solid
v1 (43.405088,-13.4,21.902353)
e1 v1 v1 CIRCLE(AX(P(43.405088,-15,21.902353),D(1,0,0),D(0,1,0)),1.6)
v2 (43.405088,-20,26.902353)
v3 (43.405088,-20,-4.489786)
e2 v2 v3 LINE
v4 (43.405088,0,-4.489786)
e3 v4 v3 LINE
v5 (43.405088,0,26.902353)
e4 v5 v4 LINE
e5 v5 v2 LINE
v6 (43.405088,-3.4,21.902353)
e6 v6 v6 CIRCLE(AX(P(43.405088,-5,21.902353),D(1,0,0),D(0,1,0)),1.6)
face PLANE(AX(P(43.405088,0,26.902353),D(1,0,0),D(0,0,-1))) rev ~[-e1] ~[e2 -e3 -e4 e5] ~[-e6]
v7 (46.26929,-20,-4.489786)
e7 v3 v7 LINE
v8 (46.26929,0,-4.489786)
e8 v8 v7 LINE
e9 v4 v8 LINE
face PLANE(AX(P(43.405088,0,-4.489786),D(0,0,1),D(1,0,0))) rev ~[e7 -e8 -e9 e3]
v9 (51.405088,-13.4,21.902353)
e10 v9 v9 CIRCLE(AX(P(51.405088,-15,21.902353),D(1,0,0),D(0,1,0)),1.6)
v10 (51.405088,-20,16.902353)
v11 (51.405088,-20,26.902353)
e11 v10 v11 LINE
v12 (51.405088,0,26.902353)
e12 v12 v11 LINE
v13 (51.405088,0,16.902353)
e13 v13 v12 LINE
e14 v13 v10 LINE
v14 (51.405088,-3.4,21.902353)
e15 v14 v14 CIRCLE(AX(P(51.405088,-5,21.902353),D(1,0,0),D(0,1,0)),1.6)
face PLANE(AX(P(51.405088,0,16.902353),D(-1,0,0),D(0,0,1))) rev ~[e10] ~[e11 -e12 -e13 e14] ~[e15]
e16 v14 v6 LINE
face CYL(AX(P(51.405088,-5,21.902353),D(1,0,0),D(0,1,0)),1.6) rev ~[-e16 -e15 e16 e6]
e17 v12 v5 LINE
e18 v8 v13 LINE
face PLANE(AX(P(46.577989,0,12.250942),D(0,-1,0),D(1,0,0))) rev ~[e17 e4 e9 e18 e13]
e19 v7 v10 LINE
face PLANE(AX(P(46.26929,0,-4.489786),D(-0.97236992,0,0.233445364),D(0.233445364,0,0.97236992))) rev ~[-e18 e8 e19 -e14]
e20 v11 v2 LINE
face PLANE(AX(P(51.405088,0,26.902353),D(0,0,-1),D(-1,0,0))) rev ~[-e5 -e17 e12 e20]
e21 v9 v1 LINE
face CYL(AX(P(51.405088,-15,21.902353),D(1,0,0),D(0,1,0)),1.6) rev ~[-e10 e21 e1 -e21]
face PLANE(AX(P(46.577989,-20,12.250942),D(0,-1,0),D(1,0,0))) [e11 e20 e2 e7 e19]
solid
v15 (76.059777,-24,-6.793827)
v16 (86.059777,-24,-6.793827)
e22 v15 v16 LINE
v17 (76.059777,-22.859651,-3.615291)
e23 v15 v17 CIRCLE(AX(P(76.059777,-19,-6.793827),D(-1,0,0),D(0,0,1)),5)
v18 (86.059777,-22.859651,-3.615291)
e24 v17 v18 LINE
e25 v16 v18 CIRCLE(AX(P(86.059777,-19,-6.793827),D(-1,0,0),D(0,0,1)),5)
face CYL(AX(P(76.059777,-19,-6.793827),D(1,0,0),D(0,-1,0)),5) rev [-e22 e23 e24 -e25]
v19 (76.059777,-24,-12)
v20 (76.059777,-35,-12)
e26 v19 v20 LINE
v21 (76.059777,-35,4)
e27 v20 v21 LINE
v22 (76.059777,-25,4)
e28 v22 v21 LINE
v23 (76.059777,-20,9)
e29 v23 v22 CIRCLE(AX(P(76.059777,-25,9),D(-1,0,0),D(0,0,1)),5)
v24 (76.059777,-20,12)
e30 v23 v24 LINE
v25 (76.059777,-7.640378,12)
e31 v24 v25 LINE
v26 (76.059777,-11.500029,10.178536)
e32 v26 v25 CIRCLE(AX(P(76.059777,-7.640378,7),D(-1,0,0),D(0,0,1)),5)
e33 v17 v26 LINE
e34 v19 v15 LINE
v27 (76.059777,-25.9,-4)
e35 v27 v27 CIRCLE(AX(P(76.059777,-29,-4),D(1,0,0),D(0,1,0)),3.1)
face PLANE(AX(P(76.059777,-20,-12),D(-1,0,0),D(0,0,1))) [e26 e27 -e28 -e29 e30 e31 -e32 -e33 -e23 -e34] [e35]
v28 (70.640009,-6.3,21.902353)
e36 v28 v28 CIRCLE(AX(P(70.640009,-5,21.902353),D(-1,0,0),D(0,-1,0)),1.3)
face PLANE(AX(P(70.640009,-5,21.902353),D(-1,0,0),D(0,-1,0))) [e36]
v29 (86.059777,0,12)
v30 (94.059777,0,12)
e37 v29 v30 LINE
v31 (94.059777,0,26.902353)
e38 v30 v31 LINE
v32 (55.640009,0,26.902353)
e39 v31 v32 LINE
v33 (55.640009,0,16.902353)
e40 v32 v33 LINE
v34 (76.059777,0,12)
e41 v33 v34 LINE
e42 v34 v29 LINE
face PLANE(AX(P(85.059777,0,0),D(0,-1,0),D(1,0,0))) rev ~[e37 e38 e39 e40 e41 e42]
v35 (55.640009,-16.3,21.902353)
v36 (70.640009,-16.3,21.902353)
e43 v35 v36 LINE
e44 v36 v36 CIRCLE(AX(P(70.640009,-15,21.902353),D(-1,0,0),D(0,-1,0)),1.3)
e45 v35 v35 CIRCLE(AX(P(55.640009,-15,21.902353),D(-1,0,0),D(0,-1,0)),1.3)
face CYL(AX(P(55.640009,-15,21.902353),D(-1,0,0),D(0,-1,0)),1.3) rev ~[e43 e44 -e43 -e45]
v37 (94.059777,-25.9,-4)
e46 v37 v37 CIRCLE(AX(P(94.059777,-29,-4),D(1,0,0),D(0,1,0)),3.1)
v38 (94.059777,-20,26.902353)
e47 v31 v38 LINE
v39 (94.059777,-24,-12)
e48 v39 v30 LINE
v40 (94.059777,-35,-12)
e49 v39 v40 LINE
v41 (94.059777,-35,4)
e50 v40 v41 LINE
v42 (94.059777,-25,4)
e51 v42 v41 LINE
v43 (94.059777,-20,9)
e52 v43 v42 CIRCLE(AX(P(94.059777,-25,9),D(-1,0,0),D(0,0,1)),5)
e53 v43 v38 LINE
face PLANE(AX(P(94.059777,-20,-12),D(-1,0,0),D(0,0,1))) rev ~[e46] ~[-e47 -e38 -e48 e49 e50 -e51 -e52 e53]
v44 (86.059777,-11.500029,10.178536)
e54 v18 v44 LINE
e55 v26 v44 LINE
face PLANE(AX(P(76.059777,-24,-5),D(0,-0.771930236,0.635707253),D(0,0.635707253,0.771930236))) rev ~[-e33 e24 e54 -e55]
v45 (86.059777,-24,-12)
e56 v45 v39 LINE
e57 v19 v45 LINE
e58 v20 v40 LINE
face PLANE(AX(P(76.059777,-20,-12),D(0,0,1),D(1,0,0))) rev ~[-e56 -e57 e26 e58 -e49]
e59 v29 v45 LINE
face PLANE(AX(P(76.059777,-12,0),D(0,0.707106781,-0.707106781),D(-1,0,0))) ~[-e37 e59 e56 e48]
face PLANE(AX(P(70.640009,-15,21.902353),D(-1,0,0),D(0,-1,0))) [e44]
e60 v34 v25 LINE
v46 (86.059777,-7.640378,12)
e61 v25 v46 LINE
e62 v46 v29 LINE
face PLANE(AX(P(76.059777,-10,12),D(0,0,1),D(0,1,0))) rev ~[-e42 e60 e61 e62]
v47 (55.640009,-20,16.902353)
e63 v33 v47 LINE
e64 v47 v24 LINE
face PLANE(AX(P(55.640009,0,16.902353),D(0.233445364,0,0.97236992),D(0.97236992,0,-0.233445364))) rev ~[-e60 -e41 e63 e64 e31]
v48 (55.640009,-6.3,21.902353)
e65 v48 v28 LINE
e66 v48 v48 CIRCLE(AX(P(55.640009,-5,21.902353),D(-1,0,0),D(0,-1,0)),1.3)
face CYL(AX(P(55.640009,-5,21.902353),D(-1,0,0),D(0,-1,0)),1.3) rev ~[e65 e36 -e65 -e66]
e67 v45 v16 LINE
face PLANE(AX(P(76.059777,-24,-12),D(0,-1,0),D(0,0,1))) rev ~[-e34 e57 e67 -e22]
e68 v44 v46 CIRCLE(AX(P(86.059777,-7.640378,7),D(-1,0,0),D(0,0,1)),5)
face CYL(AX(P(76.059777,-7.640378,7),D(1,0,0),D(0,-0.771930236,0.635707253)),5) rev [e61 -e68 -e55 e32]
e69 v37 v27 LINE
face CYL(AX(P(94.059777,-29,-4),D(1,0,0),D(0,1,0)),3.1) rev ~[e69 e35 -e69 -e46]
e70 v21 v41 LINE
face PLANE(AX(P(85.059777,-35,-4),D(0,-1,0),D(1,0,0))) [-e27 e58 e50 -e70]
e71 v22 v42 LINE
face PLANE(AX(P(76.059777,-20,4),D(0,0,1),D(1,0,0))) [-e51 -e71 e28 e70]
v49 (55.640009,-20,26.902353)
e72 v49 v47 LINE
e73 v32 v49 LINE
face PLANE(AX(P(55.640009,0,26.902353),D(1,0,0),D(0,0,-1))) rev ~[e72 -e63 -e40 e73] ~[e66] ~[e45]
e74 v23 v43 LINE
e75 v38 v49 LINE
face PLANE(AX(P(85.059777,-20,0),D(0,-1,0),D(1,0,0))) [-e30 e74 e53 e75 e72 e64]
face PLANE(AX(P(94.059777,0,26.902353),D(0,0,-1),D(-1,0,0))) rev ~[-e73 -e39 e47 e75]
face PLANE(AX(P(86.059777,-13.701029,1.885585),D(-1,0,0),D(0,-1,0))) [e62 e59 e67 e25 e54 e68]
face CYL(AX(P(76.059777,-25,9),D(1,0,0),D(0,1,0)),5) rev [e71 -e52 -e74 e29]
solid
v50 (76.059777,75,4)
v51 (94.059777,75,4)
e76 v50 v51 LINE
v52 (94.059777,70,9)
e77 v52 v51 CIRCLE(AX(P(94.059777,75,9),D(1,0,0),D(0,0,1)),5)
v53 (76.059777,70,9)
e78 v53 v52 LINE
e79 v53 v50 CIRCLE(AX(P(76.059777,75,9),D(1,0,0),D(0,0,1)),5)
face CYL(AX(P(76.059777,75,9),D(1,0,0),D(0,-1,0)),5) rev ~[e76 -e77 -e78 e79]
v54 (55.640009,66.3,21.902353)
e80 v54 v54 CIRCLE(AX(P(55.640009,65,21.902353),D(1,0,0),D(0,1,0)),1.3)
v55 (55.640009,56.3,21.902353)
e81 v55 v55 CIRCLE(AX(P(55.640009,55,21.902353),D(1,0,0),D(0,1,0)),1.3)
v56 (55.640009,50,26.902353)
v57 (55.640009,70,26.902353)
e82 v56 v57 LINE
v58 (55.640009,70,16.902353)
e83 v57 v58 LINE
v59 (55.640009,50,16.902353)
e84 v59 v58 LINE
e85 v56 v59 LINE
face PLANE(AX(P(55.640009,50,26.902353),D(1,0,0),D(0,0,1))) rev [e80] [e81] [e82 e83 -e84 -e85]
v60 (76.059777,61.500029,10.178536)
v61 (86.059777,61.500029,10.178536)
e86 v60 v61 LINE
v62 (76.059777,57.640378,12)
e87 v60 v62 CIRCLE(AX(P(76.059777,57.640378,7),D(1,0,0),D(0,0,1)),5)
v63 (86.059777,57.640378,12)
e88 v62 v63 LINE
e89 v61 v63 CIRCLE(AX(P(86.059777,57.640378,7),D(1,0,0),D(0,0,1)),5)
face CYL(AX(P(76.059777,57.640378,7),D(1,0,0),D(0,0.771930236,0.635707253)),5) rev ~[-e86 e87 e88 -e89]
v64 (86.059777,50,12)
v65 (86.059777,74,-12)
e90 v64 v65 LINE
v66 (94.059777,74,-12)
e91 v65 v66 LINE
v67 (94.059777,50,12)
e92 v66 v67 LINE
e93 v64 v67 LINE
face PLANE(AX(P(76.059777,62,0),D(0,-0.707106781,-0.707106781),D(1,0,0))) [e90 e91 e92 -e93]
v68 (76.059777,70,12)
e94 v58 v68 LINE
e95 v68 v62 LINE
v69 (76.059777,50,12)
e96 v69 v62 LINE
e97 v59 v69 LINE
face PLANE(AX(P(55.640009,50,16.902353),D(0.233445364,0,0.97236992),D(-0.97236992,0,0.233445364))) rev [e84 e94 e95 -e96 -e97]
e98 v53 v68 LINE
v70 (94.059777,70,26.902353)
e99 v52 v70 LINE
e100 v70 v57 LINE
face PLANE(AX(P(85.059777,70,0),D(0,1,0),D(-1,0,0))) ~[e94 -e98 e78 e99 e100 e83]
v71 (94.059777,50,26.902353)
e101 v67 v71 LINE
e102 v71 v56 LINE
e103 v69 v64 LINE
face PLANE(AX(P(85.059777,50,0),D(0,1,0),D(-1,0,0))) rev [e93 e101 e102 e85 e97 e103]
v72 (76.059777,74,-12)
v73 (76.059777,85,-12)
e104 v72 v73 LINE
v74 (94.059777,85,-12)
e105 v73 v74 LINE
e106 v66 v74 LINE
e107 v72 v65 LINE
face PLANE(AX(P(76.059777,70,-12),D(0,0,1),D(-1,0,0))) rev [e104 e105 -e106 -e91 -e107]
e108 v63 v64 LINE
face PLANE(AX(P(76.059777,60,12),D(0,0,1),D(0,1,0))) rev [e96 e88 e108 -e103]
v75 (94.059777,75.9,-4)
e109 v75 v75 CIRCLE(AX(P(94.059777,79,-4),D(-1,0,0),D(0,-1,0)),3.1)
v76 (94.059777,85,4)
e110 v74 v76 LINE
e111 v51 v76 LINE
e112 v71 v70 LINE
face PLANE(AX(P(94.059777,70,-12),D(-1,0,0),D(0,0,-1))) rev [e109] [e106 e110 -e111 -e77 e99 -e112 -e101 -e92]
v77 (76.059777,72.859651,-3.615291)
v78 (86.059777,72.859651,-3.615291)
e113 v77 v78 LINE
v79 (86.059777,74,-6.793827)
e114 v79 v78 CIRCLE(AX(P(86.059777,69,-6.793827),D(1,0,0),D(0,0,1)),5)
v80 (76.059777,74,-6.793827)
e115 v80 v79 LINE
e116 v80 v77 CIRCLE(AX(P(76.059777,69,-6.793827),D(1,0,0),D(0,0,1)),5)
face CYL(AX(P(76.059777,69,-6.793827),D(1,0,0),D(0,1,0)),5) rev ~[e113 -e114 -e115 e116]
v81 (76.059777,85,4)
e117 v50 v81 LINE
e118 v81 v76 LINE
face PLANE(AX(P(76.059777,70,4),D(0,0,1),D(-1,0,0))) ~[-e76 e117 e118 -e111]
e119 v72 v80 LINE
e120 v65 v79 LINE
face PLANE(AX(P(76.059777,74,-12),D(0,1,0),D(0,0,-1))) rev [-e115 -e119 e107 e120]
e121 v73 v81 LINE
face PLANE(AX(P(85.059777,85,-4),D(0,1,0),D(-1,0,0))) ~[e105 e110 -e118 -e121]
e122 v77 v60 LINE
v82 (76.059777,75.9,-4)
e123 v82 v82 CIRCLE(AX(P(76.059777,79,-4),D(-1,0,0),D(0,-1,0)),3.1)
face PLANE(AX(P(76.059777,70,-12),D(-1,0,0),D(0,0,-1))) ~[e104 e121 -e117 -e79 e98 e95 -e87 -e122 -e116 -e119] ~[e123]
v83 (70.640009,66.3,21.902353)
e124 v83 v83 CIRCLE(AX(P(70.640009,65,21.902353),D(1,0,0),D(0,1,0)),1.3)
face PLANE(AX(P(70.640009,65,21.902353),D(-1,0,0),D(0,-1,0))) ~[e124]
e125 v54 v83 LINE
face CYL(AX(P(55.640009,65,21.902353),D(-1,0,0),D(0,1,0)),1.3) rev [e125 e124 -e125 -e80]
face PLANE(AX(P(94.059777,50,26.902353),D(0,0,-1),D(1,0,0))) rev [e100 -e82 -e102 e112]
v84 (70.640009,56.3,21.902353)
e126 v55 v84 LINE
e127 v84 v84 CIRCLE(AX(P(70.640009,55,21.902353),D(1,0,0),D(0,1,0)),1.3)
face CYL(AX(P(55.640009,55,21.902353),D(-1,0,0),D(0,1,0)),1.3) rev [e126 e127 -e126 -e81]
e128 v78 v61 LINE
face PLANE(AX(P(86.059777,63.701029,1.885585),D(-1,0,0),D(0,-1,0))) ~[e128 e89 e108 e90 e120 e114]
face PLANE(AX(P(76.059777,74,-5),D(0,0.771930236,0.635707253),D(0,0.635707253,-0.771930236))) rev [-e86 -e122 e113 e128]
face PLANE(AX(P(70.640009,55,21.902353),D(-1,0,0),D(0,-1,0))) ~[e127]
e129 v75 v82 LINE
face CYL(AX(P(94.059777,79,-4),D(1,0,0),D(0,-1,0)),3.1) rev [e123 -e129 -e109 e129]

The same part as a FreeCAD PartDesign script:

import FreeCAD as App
import Part
import Sketcher
Q = App.Units.Quantity


def edges_at(feature, points):
    """Names of the edges that pass closest to the given points."""
    edges = feature.Shape.Edges
    near = lambda p: min(range(len(edges)), key=lambda i: edges[i].distToShape(Part.Vertex(*p))[0])
    return sorted({f"Edge{near(p) + 1}" for p in points})

doc = App.newDocument("Part")
body = doc.addObject("PartDesign::Body", "Body")

# Sketch on XZ plane
sketch1 = doc.addObject("Sketcher::SketchObject", "Sketch")
body.addObject(sketch1)
sketch1.AttachmentSupport = (doc.XZ_Plane, [""])
sketch1.MapMode = "FlatFace"
sketch1.addGeometry(Part.LineSegment(App.Vector(76, 12, 0), App.Vector(76, -12, 0)), False)
sketch1.addGeometry(Part.LineSegment(App.Vector(76, -12, 0), App.Vector(94, -12, 0)), False)
sketch1.addGeometry(Part.LineSegment(App.Vector(94, -12, 0), App.Vector(94, 27, 0)), False)
sketch1.addGeometry(Part.LineSegment(App.Vector(94, 27, 0), App.Vector(56, 27, 0)), False)
sketch1.addGeometry(Part.LineSegment(App.Vector(56, 27, 0), App.Vector(56, 17, 0)), False)
sketch1.addGeometry(Part.LineSegment(App.Vector(56, 17, 0), App.Vector(76, 12, 0)), False)
sketch1.addConstraint(Sketcher.Constraint("Coincident", 0, 2, 1, 1))
sketch1.addConstraint(Sketcher.Constraint("Coincident", 1, 2, 2, 1))
sketch1.addConstraint(Sketcher.Constraint("Coincident", 2, 2, 3, 1))
sketch1.addConstraint(Sketcher.Constraint("Coincident", 3, 2, 4, 1))
sketch1.addConstraint(Sketcher.Constraint("Coincident", 4, 2, 5, 1))
sketch1.addConstraint(Sketcher.Constraint("Coincident", 5, 2, 0, 1))
sketch1.addConstraint(Sketcher.Constraint("Vertical", 0))
sketch1.addConstraint(Sketcher.Constraint("Horizontal", 1))
sketch1.addConstraint(Sketcher.Constraint("Vertical", 2))
sketch1.addConstraint(Sketcher.Constraint("Horizontal", 3))
sketch1.addConstraint(Sketcher.Constraint("Vertical", 4))
sketch1.addConstraint(Sketcher.Constraint("DistanceX", 1, 1, 1, 2, 18.0))
sketch1.addConstraint(Sketcher.Constraint("DistanceY", 0, 2, 0, 1, 24.0))
sketch1.addConstraint(Sketcher.Constraint("DistanceY", 4, 2, 4, 1, 10.0))
sketch1.addConstraint(Sketcher.Constraint("Distance", 5, 21.0))
sketch1.addConstraint(Sketcher.Constraint("DistanceY", 0, 2, -1, 1, 12.0))
sketch1.addConstraint(Sketcher.Constraint("Angle", 5, Q("-13.5 deg")))
sketch1.addConstraint(Sketcher.Constraint("DistanceX", -1, 1, 3, 2, 55.640009))
pad1 = doc.addObject("PartDesign::Pad", "Pad")
body.addObject(pad1)
pad1.Profile = sketch1
pad1.Length = 20

# Sketch on YZ plane
sketch2 = doc.addObject("Sketcher::SketchObject", "Sketch001")
body.addObject(sketch2)
sketch2.AttachmentSupport = (doc.YZ_Plane, [""])
sketch2.MapMode = "FlatFace"
sketch2.AttachmentOffset = App.Placement(App.Vector(0, 0, 55.640009), App.Rotation())
sketch2.addGeometry(Part.Circle(App.Vector(-15, 21.9, 0), App.Vector(0, 0, 1), 1.3), False)
sketch2.addGeometry(Part.Circle(App.Vector(-5, 21.9, 0), App.Vector(0, 0, 1), 1.3), False)
sketch2.addConstraint(Sketcher.Constraint("Equal", 0, 1))
sketch2.addConstraint(Sketcher.Constraint("Horizontal", 0, 3, 1, 3))
sketch2.addConstraint(Sketcher.Constraint("Diameter", 0, 2.6))
sketch2.addConstraint(Sketcher.Constraint("DistanceX", 0, 3, -1, 1, 15.0))
sketch2.addConstraint(Sketcher.Constraint("DistanceX", 1, 3, -1, 1, 5.0))
sketch2.addConstraint(Sketcher.Constraint("DistanceY", -1, 1, 0, 3, 21.902353))
pocket1 = doc.addObject("PartDesign::Pocket", "Pocket")
body.addObject(pocket1)
pocket1.Profile = sketch2
pocket1.Length = 15
pocket1.Reversed = True

# Sketch on XZ plane
sketch3 = doc.addObject("Sketcher::SketchObject", "Sketch002")
body.addObject(sketch3)
sketch3.AttachmentSupport = (doc.XZ_Plane, [""])
sketch3.MapMode = "FlatFace"
sketch3.AttachmentOffset = App.Placement(App.Vector(0, 0, 20), App.Rotation())
sketch3.addGeometry(Part.LineSegment(App.Vector(76, 4, 0), App.Vector(76, -12, 0)), False)
sketch3.addGeometry(Part.LineSegment(App.Vector(76, -12, 0), App.Vector(94, -12, 0)), False)
sketch3.addGeometry(Part.LineSegment(App.Vector(94, -12, 0), App.Vector(94, 4, 0)), False)
sketch3.addGeometry(Part.LineSegment(App.Vector(94, 4, 0), App.Vector(76, 4, 0)), False)
sketch3.addConstraint(Sketcher.Constraint("Coincident", 0, 2, 1, 1))
sketch3.addConstraint(Sketcher.Constraint("Coincident", 1, 2, 2, 1))
sketch3.addConstraint(Sketcher.Constraint("Coincident", 2, 2, 3, 1))
sketch3.addConstraint(Sketcher.Constraint("Coincident", 3, 2, 0, 1))
sketch3.addConstraint(Sketcher.Constraint("Vertical", 0))
sketch3.addConstraint(Sketcher.Constraint("Horizontal", 1))
sketch3.addConstraint(Sketcher.Constraint("Vertical", 2))
sketch3.addConstraint(Sketcher.Constraint("Horizontal", 3))
sketch3.addConstraint(Sketcher.Constraint("DistanceX", 1, 1, 1, 2, 18.0))
sketch3.addConstraint(Sketcher.Constraint("DistanceY", 0, 2, 0, 1, 16.0))
sketch3.addConstraint(Sketcher.Constraint("DistanceY", 0, 2, -1, 1, 12.0))
sketch3.addConstraint(Sketcher.Constraint("DistanceX", -1, 1, 0, 2, 76.059777))
pad2 = doc.addObject("PartDesign::Pad", "Pad001")
body.addObject(pad2)
pad2.Profile = sketch3
pad2.Length = 15

# Sketch on YZ plane
sketch4 = doc.addObject("Sketcher::SketchObject", "Sketch003")
body.addObject(sketch4)
sketch4.AttachmentSupport = (doc.YZ_Plane, [""])
sketch4.MapMode = "FlatFace"
sketch4.AttachmentOffset = App.Placement(App.Vector(0, 0, 94.059777), App.Rotation())
sketch4.addGeometry(Part.Circle(App.Vector(-29, -4, 0), App.Vector(0, 0, 1), 3.1), False)
sketch4.addConstraint(Sketcher.Constraint("Diameter", 0, 6.2))
sketch4.addConstraint(Sketcher.Constraint("DistanceX", 0, 3, -1, 1, 29.0))
sketch4.addConstraint(Sketcher.Constraint("DistanceY", 0, 3, -1, 1, 4.0))
pocket2 = doc.addObject("PartDesign::Pocket", "Pocket001")
body.addObject(pocket2)
pocket2.Profile = sketch4
pocket2.Type = "ThroughAll"
doc.recompute()

chamfer = doc.addObject("PartDesign::Chamfer", "Chamfer")
body.addObject(chamfer)
chamfer.Base = (pocket2, edges_at(pocket2, [(85.06, 0, -12)]))
chamfer.Size = 24

# Sketch on YZ plane
sketch5 = doc.addObject("Sketcher::SketchObject", "Sketch004")
body.addObject(sketch5)
sketch5.AttachmentSupport = (doc.YZ_Plane, [""])
sketch5.MapMode = "FlatFace"
sketch5.AttachmentOffset = App.Placement(App.Vector(0, 0, 76.059777), App.Rotation())
sketch5.addGeometry(Part.LineSegment(App.Vector(-10, 12, 0), App.Vector(0, 12, 0)), False)
sketch5.addGeometry(Part.LineSegment(App.Vector(0, 12, 0), App.Vector(-24, -12, 0)), False)
sketch5.addGeometry(Part.LineSegment(App.Vector(-24, -12, 0), App.Vector(-24, -5, 0)), False)
sketch5.addGeometry(Part.LineSegment(App.Vector(-24, -5, 0), App.Vector(-10, 12, 0)), False)
sketch5.addConstraint(Sketcher.Constraint("Coincident", 0, 2, 1, 1))
sketch5.addConstraint(Sketcher.Constraint("Coincident", 1, 2, 2, 1))
sketch5.addConstraint(Sketcher.Constraint("Coincident", 2, 2, 3, 1))
sketch5.addConstraint(Sketcher.Constraint("Coincident", 3, 2, 0, 1))
sketch5.addConstraint(Sketcher.Constraint("Horizontal", 0))
sketch5.addConstraint(Sketcher.Constraint("Vertical", 2))
sketch5.addConstraint(Sketcher.Constraint("PointOnObject", 0, 2, -2))
sketch5.addConstraint(Sketcher.Constraint("DistanceX", 0, 1, 0, 2, 10.0))
sketch5.addConstraint(Sketcher.Constraint("DistanceY", 2, 1, 2, 2, 7.0))
sketch5.addConstraint(Sketcher.Constraint("Angle", 1, Q("-135 deg")))
sketch5.addConstraint(Sketcher.Constraint("DistanceY", -1, 1, 0, 2, 12.0))
sketch5.addConstraint(Sketcher.Constraint("DistanceX", 1, 2, -1, 1, 24.0))
pocket3 = doc.addObject("PartDesign::Pocket", "Pocket002")
body.addObject(pocket3)
pocket3.Profile = sketch5
pocket3.Length = 10
pocket3.Reversed = True
doc.recompute()

fillet = doc.addObject("PartDesign::Fillet", "Fillet")
body.addObject(fillet)
fillet.Base = (pocket3, edges_at(pocket3, [(85.06, -20, 4), (81.06, -24, -5), (81.06, -10, 12)]))
fillet.Radius = 5
body2 = doc.addObject("PartDesign::Body", "Body001")

# Sketch on XZ plane
sketch6 = doc.addObject("Sketcher::SketchObject", "Sketch005")
body2.addObject(sketch6)
sketch6.AttachmentSupport = (doc.getObject("XZ_Plane001"), [""])
sketch6.MapMode = "FlatFace"
sketch6.addGeometry(Part.LineSegment(App.Vector(51.4, 16.9, 0), App.Vector(51.4, 26.9, 0)), False)
sketch6.addGeometry(Part.LineSegment(App.Vector(51.4, 26.9, 0), App.Vector(43.4, 26.9, 0)), False)
sketch6.addGeometry(Part.LineSegment(App.Vector(43.4, 26.9, 0), App.Vector(43.4, -4.5, 0)), False)
sketch6.addGeometry(Part.LineSegment(App.Vector(43.4, -4.5, 0), App.Vector(46.3, -4.5, 0)), False)
sketch6.addGeometry(Part.LineSegment(App.Vector(46.3, -4.5, 0), App.Vector(51.4, 16.9, 0)), False)
sketch6.addConstraint(Sketcher.Constraint("Coincident", 0, 2, 1, 1))
sketch6.addConstraint(Sketcher.Constraint("Coincident", 1, 2, 2, 1))
sketch6.addConstraint(Sketcher.Constraint("Coincident", 2, 2, 3, 1))
sketch6.addConstraint(Sketcher.Constraint("Coincident", 3, 2, 4, 1))
sketch6.addConstraint(Sketcher.Constraint("Coincident", 4, 2, 0, 1))
sketch6.addConstraint(Sketcher.Constraint("Vertical", 0))
sketch6.addConstraint(Sketcher.Constraint("Horizontal", 1))
sketch6.addConstraint(Sketcher.Constraint("Vertical", 2))
sketch6.addConstraint(Sketcher.Constraint("Horizontal", 3))
sketch6.addConstraint(Sketcher.Constraint("DistanceX", 1, 2, 1, 1, 8.0))
sketch6.addConstraint(Sketcher.Constraint("DistanceY", 0, 1, 0, 2, 10.0))
sketch6.addConstraint(Sketcher.Constraint("Distance", 4, 22.0))
sketch6.addConstraint(Sketcher.Constraint("Angle", 4, Q("76.5 deg")))
sketch6.addConstraint(Sketcher.Constraint("DistanceX", -1, 1, 3, 2, 46.26929))
sketch6.addConstraint(Sketcher.Constraint("DistanceY", -1, 1, 0, 2, 26.902353))
pad3 = doc.addObject("PartDesign::Pad", "Pad002")
body2.addObject(pad3)
pad3.Profile = sketch6
pad3.Length = 20

# Sketch on YZ plane
sketch7 = doc.addObject("Sketcher::SketchObject", "Sketch006")
body2.addObject(sketch7)
sketch7.AttachmentSupport = (doc.getObject("YZ_Plane001"), [""])
sketch7.MapMode = "FlatFace"
sketch7.AttachmentOffset = App.Placement(App.Vector(0, 0, 51.405088), App.Rotation())
sketch7.addGeometry(Part.Circle(App.Vector(-15, 21.9, 0), App.Vector(0, 0, 1), 1.6), False)
sketch7.addGeometry(Part.Circle(App.Vector(-5, 21.9, 0), App.Vector(0, 0, 1), 1.6), False)
sketch7.addConstraint(Sketcher.Constraint("Equal", 0, 1))
sketch7.addConstraint(Sketcher.Constraint("Horizontal", 0, 3, 1, 3))
sketch7.addConstraint(Sketcher.Constraint("Diameter", 0, 3.2))
sketch7.addConstraint(Sketcher.Constraint("DistanceX", 0, 3, -1, 1, 15.0))
sketch7.addConstraint(Sketcher.Constraint("DistanceX", 1, 3, -1, 1, 5.0))
sketch7.addConstraint(Sketcher.Constraint("DistanceY", -1, 1, 0, 3, 21.902353))
pocket4 = doc.addObject("PartDesign::Pocket", "Pocket003")
body2.addObject(pocket4)
pocket4.Profile = sketch7
pocket4.Length = 10
body3 = doc.addObject("PartDesign::Body", "Body002")
doc.recompute()

mirroring = doc.addObject("Part::Mirroring", "Mirroring")
mirroring.Source = body
mirroring.Base = App.Vector(76.038073, 25, 20.008425)
mirroring.Normal = App.Vector(0, 1, 0)
body3.BaseFeature = mirroring
doc.recompute()
mirroring.Visibility = False

doc.recompute()
